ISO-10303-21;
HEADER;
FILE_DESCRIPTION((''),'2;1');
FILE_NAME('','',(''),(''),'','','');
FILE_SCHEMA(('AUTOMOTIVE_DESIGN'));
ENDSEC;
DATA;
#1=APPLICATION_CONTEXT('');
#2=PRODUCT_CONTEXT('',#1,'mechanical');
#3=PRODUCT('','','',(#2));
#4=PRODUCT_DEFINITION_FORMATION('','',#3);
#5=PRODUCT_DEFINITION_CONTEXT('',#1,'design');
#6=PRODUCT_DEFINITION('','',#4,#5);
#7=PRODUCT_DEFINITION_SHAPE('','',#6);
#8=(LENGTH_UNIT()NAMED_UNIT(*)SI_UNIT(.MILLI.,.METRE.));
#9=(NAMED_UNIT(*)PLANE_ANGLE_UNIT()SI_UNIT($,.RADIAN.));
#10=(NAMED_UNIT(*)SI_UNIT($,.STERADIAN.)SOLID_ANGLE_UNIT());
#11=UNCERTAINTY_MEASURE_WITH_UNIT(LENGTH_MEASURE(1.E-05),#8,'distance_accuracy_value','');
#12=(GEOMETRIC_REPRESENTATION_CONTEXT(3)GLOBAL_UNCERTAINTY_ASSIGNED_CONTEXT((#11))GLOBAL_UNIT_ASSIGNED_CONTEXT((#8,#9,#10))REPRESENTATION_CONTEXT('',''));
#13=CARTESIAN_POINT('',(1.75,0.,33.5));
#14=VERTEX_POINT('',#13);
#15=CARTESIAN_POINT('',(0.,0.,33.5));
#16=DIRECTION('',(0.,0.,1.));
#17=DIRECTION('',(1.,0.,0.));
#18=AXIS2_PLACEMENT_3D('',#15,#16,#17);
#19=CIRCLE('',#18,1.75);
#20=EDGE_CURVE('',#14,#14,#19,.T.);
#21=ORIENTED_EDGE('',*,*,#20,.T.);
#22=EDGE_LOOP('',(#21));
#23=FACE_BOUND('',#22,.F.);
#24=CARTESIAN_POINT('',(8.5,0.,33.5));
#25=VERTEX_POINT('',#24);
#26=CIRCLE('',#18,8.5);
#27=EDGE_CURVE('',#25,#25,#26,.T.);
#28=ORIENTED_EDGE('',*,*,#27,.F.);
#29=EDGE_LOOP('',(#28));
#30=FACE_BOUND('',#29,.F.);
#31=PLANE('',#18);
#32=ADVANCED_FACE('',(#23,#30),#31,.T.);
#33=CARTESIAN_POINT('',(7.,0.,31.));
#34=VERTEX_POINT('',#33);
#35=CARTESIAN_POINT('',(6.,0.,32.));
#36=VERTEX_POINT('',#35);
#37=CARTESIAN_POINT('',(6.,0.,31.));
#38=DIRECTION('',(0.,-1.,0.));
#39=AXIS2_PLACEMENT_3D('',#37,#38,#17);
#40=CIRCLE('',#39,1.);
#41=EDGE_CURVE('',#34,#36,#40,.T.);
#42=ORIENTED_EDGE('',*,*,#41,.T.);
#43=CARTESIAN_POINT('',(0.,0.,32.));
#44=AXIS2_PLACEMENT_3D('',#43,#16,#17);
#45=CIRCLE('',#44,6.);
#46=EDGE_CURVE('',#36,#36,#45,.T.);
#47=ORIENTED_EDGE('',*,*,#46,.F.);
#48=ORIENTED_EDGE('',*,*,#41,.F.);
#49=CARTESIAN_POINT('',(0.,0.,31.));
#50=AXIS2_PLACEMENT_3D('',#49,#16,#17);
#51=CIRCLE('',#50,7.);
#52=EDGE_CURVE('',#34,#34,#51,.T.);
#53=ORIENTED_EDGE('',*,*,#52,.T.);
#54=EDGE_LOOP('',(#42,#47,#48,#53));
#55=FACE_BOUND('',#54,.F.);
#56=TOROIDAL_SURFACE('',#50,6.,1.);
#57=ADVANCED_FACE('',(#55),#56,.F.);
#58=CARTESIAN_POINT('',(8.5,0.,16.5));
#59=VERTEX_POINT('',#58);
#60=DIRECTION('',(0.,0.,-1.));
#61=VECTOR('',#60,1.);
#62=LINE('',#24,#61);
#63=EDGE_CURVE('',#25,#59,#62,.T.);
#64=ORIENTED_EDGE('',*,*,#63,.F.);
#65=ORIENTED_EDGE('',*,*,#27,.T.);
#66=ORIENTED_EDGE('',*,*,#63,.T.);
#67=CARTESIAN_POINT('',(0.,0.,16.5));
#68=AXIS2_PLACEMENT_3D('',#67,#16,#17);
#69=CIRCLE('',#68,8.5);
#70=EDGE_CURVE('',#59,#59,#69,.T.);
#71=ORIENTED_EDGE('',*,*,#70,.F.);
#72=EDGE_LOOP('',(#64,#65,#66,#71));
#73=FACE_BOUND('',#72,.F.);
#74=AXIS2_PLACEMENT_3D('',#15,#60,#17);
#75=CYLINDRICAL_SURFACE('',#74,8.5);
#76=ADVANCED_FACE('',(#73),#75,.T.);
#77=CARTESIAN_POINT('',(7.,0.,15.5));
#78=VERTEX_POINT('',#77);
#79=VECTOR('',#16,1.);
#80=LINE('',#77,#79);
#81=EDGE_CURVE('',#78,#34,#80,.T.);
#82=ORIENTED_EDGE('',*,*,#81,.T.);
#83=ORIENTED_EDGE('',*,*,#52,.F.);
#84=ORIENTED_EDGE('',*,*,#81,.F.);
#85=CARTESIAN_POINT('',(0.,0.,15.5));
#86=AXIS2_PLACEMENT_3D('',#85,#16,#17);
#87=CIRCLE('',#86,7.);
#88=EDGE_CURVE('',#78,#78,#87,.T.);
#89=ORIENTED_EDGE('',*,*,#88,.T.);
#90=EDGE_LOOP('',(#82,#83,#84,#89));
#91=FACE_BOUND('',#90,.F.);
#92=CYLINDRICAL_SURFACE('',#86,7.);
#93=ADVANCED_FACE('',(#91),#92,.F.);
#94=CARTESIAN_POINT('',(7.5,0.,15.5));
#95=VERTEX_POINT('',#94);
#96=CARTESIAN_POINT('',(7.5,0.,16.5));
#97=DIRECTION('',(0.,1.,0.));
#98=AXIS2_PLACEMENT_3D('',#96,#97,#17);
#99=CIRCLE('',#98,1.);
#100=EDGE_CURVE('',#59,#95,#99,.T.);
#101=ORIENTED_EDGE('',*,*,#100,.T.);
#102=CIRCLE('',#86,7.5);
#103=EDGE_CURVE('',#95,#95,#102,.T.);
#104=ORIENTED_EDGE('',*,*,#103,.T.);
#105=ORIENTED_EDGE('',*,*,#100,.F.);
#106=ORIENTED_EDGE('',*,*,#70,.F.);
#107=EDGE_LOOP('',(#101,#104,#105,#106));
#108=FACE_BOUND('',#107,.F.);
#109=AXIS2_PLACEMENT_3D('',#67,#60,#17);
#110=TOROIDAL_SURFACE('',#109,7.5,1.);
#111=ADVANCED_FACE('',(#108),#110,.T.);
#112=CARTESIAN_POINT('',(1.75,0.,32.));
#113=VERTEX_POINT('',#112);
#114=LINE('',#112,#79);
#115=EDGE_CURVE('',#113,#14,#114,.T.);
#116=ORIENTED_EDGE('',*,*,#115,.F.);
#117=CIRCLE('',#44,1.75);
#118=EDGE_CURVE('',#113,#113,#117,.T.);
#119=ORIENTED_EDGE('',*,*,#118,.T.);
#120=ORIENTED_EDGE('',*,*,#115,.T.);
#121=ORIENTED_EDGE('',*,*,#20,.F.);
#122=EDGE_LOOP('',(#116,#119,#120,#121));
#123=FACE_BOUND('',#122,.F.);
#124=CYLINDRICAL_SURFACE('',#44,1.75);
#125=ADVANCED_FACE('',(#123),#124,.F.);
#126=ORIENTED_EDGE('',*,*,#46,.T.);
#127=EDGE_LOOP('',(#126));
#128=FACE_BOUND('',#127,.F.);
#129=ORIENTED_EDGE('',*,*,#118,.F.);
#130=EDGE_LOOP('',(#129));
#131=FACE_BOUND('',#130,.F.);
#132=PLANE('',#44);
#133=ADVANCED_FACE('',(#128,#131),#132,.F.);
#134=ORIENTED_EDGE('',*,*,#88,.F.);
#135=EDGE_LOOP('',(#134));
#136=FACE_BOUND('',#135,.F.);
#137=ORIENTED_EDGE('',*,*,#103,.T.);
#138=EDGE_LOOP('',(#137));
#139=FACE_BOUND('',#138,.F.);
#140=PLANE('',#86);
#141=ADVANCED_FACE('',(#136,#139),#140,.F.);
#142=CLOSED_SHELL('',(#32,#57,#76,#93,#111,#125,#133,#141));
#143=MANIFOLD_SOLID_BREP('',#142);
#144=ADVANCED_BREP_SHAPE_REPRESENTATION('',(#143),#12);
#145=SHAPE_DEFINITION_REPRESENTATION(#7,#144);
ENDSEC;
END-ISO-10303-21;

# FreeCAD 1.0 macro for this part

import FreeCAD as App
import Part
import Sketcher

V = App.Vector
Q = App.Units.Quantity


def edges_at(feature, points):
    """Names of the edges that pass closest to the given points."""
    edges = feature.Shape.Edges
    near = lambda p: min(range(len(edges)), key=lambda i: edges[i].distToShape(Part.Vertex(*p))[0])
    return sorted({f"Edge{near(p) + 1}" for p in points})


def add_polygon(sketch, points):
    """Adds a closed chain of lines whose ends are joined by coincident constraints."""
    first, n = sketch.GeometryCount, len(points)
    for a, b in zip(points, points[1:] + points[:1]):
        sketch.addGeometry(Part.LineSegment(App.Vector(*a, 0), App.Vector(*b, 0)), False)
    for i in range(n):
        sketch.addConstraint(Sketcher.Constraint("Coincident", first + i, 2, first + (i + 1) % n, 1))

doc = App.newDocument("Part")
body = doc.addObject("PartDesign::Body", "Body")

# Sketch on XZ plane
sketch1 = body.newObject("Sketcher::SketchObject", "Sketch")
sketch1.AttachmentSupport = (doc.getObject("XZ_Plane"), [""])
sketch1.MapMode = "FlatFace"
add_polygon(sketch1, [(8.5, 33.5), (1.75, 33.5), (1.75, 32), (7, 32), (7, 15.5), (8.5, 15.5)])  # lines 0-5
sketch1.addConstraint(Sketcher.Constraint("Horizontal", 0))
sketch1.addConstraint(Sketcher.Constraint("Vertical", 1))
sketch1.addConstraint(Sketcher.Constraint("Horizontal", 2))
sketch1.addConstraint(Sketcher.Constraint("Vertical", 3))
sketch1.addConstraint(Sketcher.Constraint("Horizontal", 4))
sketch1.addConstraint(Sketcher.Constraint("Vertical", 5))
sketch1.addConstraint(Sketcher.Constraint("Equal", 4, 1))
sketch1.addConstraint(Sketcher.Constraint("DistanceY", 5, 1, 5, 2, Q("18 mm")))
sketch1.addConstraint(Sketcher.Constraint("DistanceX", 4, 1, 4, 2, Q("1.5 mm")))
sketch1.addConstraint(Sketcher.Constraint("DistanceY", -1, 1, 1, 2, Q("32 mm")))
sketch1.addConstraint(Sketcher.Constraint("DistanceX", -1, 1, 2, 2, Q("7 mm")))
sketch1.addConstraint(Sketcher.Constraint("DistanceX", 0, 2, 0, 1, Q("6.75 mm")))
revolution = body.newObject("PartDesign::Revolution", "Revolution")
revolution.Profile = sketch1
revolution.ReferenceAxis = (sketch1, ["V_Axis"])
revolution.Angle = 360
doc.recompute()

fillet = body.newObject("PartDesign::Fillet", "Fillet")
fillet.Base = (revolution, edges_at(revolution, [(-8.5, 0, 15.5)]))
fillet.Radius = 1
doc.recompute()

fillet2 = body.newObject("PartDesign::Fillet", "Fillet001")
fillet2.Base = (fillet, edges_at(fillet, [(-7, 0, 32)]))
fillet2.Radius = 1

doc.recompute()
